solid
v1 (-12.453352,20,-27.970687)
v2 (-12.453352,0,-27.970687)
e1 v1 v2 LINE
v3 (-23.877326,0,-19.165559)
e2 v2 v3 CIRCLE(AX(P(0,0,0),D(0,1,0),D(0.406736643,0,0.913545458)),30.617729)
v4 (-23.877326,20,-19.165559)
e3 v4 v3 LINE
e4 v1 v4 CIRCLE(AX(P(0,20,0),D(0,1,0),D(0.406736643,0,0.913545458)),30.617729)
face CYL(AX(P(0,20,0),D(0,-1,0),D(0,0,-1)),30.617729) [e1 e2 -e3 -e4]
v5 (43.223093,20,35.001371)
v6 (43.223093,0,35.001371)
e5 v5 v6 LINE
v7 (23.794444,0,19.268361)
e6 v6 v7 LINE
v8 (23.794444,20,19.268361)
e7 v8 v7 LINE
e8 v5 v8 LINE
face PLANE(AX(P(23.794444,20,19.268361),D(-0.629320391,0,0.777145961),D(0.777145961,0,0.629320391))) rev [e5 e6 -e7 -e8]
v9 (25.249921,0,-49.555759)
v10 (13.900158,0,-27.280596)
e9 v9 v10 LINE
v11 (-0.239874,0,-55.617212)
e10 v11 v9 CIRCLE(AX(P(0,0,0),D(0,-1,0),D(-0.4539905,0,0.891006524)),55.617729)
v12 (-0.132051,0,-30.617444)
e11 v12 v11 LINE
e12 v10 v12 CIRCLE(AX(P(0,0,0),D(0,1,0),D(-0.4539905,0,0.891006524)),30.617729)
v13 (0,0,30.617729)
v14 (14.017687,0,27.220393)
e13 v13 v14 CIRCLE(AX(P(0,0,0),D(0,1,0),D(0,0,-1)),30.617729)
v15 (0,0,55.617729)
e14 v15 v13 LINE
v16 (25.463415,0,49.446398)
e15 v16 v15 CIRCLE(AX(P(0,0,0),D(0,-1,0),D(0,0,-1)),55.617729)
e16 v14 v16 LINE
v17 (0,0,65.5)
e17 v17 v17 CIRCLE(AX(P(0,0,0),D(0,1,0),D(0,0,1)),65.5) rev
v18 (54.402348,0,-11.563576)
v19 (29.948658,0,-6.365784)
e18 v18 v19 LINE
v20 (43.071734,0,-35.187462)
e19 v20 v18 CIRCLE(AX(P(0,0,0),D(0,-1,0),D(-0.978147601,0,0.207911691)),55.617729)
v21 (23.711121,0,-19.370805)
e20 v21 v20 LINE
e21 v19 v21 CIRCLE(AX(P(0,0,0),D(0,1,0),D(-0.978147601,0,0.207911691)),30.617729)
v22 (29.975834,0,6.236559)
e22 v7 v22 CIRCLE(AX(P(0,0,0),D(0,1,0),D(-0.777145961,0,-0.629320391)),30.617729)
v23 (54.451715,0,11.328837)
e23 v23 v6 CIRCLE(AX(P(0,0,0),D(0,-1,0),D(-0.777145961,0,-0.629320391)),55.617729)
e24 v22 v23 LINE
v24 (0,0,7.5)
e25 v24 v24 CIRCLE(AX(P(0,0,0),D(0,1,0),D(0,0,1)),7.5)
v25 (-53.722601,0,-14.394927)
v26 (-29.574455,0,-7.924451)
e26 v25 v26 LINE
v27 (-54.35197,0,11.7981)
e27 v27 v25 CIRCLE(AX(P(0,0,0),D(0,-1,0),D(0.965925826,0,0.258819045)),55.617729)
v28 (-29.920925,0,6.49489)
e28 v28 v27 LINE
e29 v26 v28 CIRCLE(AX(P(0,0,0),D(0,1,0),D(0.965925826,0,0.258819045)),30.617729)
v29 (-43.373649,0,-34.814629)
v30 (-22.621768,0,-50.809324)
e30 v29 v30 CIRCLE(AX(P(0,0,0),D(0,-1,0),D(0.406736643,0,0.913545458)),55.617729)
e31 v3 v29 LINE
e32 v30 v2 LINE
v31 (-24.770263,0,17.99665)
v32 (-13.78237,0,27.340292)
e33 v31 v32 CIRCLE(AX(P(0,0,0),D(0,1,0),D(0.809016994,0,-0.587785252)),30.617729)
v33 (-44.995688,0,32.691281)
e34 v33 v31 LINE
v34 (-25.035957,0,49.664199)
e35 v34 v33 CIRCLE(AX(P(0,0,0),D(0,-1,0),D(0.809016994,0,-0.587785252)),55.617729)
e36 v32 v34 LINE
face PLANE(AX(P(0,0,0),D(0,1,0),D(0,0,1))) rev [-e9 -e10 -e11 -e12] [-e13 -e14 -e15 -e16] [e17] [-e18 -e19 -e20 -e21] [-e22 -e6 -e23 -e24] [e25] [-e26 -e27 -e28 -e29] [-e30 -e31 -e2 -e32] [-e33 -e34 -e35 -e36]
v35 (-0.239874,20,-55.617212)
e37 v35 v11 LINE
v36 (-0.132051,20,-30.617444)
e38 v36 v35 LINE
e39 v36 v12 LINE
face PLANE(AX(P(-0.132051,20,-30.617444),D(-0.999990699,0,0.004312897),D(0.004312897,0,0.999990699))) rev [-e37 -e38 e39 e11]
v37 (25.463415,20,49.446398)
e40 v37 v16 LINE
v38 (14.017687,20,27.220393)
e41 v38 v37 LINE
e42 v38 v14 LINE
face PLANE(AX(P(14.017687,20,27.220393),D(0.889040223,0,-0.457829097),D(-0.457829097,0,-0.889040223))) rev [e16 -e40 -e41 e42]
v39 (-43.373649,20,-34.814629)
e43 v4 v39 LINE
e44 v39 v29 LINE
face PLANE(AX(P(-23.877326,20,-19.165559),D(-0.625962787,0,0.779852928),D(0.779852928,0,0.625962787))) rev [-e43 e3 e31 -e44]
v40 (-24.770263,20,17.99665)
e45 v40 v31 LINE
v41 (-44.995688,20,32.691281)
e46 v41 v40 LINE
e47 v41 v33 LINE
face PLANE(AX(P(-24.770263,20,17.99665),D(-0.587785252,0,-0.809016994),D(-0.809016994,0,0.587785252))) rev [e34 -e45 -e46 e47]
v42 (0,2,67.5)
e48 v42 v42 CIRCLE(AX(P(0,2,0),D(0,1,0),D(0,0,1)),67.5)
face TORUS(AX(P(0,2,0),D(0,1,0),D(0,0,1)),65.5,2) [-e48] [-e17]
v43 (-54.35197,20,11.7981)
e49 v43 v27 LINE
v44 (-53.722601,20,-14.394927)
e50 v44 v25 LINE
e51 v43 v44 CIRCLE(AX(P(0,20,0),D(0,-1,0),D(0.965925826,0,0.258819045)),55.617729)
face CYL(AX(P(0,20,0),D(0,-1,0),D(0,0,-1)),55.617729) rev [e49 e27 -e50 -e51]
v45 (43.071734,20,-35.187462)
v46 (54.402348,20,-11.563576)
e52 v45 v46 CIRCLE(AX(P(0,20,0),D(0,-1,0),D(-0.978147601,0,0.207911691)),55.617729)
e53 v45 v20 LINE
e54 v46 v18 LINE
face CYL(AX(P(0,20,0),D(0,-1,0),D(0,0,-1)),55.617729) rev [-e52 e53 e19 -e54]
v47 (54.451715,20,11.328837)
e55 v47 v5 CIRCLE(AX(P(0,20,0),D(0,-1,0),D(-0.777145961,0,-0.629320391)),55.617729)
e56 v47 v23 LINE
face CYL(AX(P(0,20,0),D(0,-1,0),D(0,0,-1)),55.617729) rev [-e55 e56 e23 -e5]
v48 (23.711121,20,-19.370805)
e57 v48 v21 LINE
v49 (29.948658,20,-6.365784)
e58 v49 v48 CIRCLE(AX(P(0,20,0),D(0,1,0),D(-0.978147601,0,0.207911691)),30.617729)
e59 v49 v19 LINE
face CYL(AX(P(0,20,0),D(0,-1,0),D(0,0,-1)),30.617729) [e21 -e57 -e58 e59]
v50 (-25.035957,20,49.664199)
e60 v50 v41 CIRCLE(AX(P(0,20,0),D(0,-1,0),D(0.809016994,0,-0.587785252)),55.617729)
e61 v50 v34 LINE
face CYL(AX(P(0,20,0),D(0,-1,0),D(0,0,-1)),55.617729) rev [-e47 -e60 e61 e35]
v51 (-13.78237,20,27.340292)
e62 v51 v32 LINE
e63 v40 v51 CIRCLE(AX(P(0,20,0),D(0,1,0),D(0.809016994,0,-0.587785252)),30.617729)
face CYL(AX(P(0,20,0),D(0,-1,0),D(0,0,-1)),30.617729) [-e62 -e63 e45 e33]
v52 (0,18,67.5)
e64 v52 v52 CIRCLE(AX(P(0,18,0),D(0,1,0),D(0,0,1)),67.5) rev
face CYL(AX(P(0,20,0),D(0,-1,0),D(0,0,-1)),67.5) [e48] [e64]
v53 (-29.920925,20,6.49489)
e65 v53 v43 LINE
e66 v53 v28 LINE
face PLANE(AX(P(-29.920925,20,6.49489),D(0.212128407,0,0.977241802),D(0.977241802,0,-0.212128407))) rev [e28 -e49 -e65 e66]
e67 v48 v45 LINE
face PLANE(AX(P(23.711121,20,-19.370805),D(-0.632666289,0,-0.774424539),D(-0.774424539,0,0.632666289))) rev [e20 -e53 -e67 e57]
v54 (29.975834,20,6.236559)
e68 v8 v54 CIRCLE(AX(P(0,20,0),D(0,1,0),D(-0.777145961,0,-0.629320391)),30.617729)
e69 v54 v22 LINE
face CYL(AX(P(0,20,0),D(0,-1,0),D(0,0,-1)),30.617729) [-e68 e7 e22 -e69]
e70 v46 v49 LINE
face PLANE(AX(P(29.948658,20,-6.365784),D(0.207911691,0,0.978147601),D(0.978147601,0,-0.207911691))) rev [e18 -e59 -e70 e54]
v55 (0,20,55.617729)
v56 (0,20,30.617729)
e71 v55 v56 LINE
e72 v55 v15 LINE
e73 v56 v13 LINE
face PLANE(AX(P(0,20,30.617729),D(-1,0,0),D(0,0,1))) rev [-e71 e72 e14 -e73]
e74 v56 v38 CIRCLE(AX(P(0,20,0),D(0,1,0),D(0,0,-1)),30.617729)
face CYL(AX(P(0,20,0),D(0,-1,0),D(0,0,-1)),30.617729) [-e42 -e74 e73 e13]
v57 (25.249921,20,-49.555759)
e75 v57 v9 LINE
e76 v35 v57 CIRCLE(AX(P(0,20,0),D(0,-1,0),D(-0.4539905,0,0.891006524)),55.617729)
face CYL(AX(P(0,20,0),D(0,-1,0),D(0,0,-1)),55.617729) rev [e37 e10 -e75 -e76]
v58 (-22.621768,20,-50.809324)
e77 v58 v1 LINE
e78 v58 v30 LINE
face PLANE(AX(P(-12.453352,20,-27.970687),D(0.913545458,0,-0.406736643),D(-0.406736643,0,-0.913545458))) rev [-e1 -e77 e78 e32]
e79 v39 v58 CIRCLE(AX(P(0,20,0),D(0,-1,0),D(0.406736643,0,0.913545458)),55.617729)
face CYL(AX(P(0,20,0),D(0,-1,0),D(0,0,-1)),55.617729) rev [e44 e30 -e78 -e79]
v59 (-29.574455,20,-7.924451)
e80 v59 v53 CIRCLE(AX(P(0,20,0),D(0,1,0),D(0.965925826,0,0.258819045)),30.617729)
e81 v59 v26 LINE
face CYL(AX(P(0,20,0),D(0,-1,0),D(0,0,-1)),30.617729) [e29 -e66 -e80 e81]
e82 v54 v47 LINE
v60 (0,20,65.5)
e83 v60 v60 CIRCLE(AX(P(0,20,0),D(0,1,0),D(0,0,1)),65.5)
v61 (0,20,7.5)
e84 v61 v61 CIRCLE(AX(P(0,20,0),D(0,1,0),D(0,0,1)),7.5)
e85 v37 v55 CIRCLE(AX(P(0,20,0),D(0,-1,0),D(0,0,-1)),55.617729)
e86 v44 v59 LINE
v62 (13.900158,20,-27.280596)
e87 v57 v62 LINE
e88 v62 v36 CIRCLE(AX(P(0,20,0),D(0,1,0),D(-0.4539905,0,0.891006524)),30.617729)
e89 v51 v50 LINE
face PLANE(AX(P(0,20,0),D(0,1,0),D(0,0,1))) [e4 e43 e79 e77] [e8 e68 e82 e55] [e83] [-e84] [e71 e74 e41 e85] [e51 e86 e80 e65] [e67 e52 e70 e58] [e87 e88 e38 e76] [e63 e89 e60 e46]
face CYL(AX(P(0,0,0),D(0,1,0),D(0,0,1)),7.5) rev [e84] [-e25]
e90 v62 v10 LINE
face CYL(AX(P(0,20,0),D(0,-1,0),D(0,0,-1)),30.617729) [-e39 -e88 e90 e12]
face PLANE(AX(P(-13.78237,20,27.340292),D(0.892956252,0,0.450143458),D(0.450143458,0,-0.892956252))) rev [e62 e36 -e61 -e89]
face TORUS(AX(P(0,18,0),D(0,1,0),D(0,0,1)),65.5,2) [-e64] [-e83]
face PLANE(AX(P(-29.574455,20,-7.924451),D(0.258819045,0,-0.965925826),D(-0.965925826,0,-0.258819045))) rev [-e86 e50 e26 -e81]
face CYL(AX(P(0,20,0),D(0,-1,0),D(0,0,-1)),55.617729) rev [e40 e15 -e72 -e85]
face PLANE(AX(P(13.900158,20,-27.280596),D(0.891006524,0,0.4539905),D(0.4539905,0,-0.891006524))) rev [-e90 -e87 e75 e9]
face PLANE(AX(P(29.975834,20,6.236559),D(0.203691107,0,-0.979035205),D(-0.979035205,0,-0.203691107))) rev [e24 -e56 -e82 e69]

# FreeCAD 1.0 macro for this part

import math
import FreeCAD as App
import Part
import Sketcher
from FreeCAD import Vector
Q = App.Units.Quantity


def edges_at(feature, points):
    """Names of the edges that pass closest to the given points."""
    edges = feature.Shape.Edges
    near = lambda p: min(range(len(edges)), key=lambda i: edges[i].distToShape(Part.Vertex(*p))[0])
    return sorted({f"Edge{near(p) + 1}" for p in points})

doc = App.newDocument("Part")
body = doc.addObject("PartDesign::Body", "Body")

# Sketch on XZ plane
sketch1 = body.newObject("Sketcher::SketchObject", "Sketch")
sketch1.AttachmentSupport = (doc.getObject("XZ_Plane"), [""])
sketch1.MapMode = "FlatFace"
sketch1.addGeometry(Part.Circle(Vector(0, 0, 0), Vector(0, 0, 1), 67.5), False)
sketch1.addConstraint(Sketcher.Constraint("Coincident", 0, 3, -1, 1))
sketch1.addConstraint(Sketcher.Constraint("Diameter", 0, Q("135 mm")))
pad1 = body.newObject("PartDesign::Pad", "Pad")
pad1.Profile = sketch1
pad1.Length = 20
pad1.Reversed = True
doc.recompute()

fillet = body.newObject("PartDesign::Fillet", "Fillet")
fillet.Base = (pad1, edges_at(pad1, [(0, 0, -67.5), (0, 20, -67.5)]))
fillet.Radius = 2

# Sketch on XZ plane
sketch2 = body.newObject("Sketcher::SketchObject", "Sketch001")
sketch2.AttachmentSupport = (doc.getObject("XZ_Plane"), [""])
sketch2.MapMode = "FlatFace"
sketch2.AttachmentOffset = App.Placement(Vector(0, 0, -20), App.Rotation())
sketch2.addGeometry(Part.Circle(Vector(0, 0, 0), Vector(0, 0, 1), 7.5), False)
sketch2.addConstraint(Sketcher.Constraint("Coincident", 0, 3, -1, 1))
sketch2.addConstraint(Sketcher.Constraint("Diameter", 0, Q("15 mm")))
pocket1 = body.newObject("PartDesign::Pocket", "Pocket")
pocket1.Profile = sketch2
pocket1.Type = "ThroughAll"
pocket1.Reversed = True

# Sketch on XZ plane
sketch3 = body.newObject("Sketcher::SketchObject", "Sketch002")
sketch3.AttachmentSupport = (doc.getObject("XZ_Plane"), [""])
sketch3.MapMode = "FlatFace"
sketch3.addGeometry(Part.LineSegment(Vector(0, 55.617729, 0), Vector(0, 30.617729, 0)), False)
sketch3.addGeometry(Part.ArcOfCircle(Part.Circle(Vector(0, 0, 0), Vector(0, 0, 1), 30.617729), math.radians(62.752888), math.radians(90)), False)
sketch3.addGeometry(Part.LineSegment(Vector(14.017687, 27.220393, 0), Vector(25.463415, 49.446398, 0)), False)
sketch3.addGeometry(Part.ArcOfCircle(Part.Circle(Vector(0, 0, 0), Vector(0, 0, 1), 55.617729), math.radians(62.752888), math.radians(90)), False)
sketch3.addConstraint(Sketcher.Constraint("Coincident", 0, 2, 1, 2))
sketch3.addConstraint(Sketcher.Constraint("Coincident", 1, 1, 2, 1))
sketch3.addConstraint(Sketcher.Constraint("Coincident", 2, 2, 3, 1))
sketch3.addConstraint(Sketcher.Constraint("Coincident", 3, 2, 0, 1))
sketch3.addConstraint(Sketcher.Constraint("Vertical", 0))
sketch3.addConstraint(Sketcher.Constraint("Coincident", 1, 3, -1, 1))
sketch3.addConstraint(Sketcher.Constraint("Coincident", 3, 3, -1, 1))
sketch3.addConstraint(Sketcher.Constraint("PointOnObject", 0, 2, -2))
sketch3.addConstraint(Sketcher.Constraint("DistanceY", 0, 2, 0, 1, Q("25 mm")))
sketch3.addConstraint(Sketcher.Constraint("Radius", 1, Q("30.617729 mm")))
sketch3.addConstraint(Sketcher.Constraint("DistanceY", -1, 1, 2, 2, Q("49.446398 mm")))
sketch3.addConstraint(Sketcher.Constraint("DistanceX", -1, 1, 1, 1, Q("14.017687 mm")))
pocket2 = body.newObject("PartDesign::Pocket", "Pocket001")
pocket2.Profile = sketch3
pocket2.Type = "ThroughAll"
doc.recompute()

polarpattern = body.newObject("PartDesign::PolarPattern", "PolarPattern")
polarpattern.Originals = [pocket2]
polarpattern.Axis = (doc.getObject("Y_Axis"), [""])
polarpattern.Angle = 306
polarpattern.Occurrences = 7
body.Tip = polarpattern

doc.recompute()
